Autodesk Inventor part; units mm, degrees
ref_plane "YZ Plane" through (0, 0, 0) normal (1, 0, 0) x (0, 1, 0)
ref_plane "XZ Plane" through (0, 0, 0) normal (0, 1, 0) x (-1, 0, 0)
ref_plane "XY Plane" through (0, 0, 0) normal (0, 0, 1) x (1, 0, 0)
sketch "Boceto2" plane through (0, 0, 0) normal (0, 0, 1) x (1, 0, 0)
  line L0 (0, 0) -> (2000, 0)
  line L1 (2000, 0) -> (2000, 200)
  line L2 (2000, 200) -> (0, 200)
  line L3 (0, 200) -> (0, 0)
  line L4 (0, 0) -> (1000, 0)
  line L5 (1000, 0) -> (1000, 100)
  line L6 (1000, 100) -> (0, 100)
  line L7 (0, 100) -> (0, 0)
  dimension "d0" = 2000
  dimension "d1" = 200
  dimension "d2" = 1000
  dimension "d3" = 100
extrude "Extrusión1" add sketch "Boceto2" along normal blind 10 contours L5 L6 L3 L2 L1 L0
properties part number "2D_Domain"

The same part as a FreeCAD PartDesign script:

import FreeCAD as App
import Part
import Sketcher

V = App.Vector

doc = App.newDocument("Part")
body = doc.addObject("PartDesign::Body", "Body")

# Sketch on XY plane
sketch1 = body.newObject("Sketcher::SketchObject", "Sketch")
sketch1.AttachmentSupport = (doc.getObject("XY_Plane"), [""])
sketch1.MapMode = "FlatFace"
sketch1.addGeometry(Part.LineSegment(V(1000, 100, 0), V(1000, 0, 0)), False)
sketch1.addGeometry(Part.LineSegment(V(1000, 0, 0), V(2000, 0, 0)), False)
sketch1.addGeometry(Part.LineSegment(V(2000, 0, 0), V(2000, 200, 0)), False)
sketch1.addGeometry(Part.LineSegment(V(2000, 200, 0), V(0, 200, 0)), False)
sketch1.addGeometry(Part.LineSegment(V(0, 200, 0), V(0, 100, 0)), False)
sketch1.addGeometry(Part.LineSegment(V(0, 100, 0), V(1000, 100, 0)), False)
sketch1.addConstraint(Sketcher.Constraint("Coincident", 0, 2, 1, 1))
sketch1.addConstraint(Sketcher.Constraint("Coincident", 1, 2, 2, 1))
sketch1.addConstraint(Sketcher.Constraint("Coincident", 2, 2, 3, 1))
sketch1.addConstraint(Sketcher.Constraint("Coincident", 3, 2, 4, 1))
sketch1.addConstraint(Sketcher.Constraint("Coincident", 4, 2, 5, 1))
sketch1.addConstraint(Sketcher.Constraint("Coincident", 5, 2, 0, 1))
sketch1.addConstraint(Sketcher.Constraint("Vertical", 0))
sketch1.addConstraint(Sketcher.Constraint("Horizontal", 1))
sketch1.addConstraint(Sketcher.Constraint("Vertical", 2))
sketch1.addConstraint(Sketcher.Constraint("Horizontal", 3))
sketch1.addConstraint(Sketcher.Constraint("Vertical", 4))
sketch1.addConstraint(Sketcher.Constraint("Horizontal", 5))
sketch1.addConstraint(Sketcher.Constraint("PointOnObject", 0, 2, -1))
sketch1.addConstraint(Sketcher.Constraint("PointOnObject", 3, 2, -2))
sketch1.addConstraint(Sketcher.Constraint("Equal", 1, 5))
sketch1.addConstraint(Sketcher.Constraint("Equal", 0, 4))
sketch1.addConstraint(Sketcher.Constraint("DistanceX", 1, 1, 1, 2, 1000.0))
sketch1.addConstraint(Sketcher.Constraint("DistanceY", 0, 2, 0, 1, 100.0))
pad1 = body.newObject("PartDesign::Pad", "Pad")
pad1.Profile = sketch1
pad1.Length = 10

doc.recompute()
